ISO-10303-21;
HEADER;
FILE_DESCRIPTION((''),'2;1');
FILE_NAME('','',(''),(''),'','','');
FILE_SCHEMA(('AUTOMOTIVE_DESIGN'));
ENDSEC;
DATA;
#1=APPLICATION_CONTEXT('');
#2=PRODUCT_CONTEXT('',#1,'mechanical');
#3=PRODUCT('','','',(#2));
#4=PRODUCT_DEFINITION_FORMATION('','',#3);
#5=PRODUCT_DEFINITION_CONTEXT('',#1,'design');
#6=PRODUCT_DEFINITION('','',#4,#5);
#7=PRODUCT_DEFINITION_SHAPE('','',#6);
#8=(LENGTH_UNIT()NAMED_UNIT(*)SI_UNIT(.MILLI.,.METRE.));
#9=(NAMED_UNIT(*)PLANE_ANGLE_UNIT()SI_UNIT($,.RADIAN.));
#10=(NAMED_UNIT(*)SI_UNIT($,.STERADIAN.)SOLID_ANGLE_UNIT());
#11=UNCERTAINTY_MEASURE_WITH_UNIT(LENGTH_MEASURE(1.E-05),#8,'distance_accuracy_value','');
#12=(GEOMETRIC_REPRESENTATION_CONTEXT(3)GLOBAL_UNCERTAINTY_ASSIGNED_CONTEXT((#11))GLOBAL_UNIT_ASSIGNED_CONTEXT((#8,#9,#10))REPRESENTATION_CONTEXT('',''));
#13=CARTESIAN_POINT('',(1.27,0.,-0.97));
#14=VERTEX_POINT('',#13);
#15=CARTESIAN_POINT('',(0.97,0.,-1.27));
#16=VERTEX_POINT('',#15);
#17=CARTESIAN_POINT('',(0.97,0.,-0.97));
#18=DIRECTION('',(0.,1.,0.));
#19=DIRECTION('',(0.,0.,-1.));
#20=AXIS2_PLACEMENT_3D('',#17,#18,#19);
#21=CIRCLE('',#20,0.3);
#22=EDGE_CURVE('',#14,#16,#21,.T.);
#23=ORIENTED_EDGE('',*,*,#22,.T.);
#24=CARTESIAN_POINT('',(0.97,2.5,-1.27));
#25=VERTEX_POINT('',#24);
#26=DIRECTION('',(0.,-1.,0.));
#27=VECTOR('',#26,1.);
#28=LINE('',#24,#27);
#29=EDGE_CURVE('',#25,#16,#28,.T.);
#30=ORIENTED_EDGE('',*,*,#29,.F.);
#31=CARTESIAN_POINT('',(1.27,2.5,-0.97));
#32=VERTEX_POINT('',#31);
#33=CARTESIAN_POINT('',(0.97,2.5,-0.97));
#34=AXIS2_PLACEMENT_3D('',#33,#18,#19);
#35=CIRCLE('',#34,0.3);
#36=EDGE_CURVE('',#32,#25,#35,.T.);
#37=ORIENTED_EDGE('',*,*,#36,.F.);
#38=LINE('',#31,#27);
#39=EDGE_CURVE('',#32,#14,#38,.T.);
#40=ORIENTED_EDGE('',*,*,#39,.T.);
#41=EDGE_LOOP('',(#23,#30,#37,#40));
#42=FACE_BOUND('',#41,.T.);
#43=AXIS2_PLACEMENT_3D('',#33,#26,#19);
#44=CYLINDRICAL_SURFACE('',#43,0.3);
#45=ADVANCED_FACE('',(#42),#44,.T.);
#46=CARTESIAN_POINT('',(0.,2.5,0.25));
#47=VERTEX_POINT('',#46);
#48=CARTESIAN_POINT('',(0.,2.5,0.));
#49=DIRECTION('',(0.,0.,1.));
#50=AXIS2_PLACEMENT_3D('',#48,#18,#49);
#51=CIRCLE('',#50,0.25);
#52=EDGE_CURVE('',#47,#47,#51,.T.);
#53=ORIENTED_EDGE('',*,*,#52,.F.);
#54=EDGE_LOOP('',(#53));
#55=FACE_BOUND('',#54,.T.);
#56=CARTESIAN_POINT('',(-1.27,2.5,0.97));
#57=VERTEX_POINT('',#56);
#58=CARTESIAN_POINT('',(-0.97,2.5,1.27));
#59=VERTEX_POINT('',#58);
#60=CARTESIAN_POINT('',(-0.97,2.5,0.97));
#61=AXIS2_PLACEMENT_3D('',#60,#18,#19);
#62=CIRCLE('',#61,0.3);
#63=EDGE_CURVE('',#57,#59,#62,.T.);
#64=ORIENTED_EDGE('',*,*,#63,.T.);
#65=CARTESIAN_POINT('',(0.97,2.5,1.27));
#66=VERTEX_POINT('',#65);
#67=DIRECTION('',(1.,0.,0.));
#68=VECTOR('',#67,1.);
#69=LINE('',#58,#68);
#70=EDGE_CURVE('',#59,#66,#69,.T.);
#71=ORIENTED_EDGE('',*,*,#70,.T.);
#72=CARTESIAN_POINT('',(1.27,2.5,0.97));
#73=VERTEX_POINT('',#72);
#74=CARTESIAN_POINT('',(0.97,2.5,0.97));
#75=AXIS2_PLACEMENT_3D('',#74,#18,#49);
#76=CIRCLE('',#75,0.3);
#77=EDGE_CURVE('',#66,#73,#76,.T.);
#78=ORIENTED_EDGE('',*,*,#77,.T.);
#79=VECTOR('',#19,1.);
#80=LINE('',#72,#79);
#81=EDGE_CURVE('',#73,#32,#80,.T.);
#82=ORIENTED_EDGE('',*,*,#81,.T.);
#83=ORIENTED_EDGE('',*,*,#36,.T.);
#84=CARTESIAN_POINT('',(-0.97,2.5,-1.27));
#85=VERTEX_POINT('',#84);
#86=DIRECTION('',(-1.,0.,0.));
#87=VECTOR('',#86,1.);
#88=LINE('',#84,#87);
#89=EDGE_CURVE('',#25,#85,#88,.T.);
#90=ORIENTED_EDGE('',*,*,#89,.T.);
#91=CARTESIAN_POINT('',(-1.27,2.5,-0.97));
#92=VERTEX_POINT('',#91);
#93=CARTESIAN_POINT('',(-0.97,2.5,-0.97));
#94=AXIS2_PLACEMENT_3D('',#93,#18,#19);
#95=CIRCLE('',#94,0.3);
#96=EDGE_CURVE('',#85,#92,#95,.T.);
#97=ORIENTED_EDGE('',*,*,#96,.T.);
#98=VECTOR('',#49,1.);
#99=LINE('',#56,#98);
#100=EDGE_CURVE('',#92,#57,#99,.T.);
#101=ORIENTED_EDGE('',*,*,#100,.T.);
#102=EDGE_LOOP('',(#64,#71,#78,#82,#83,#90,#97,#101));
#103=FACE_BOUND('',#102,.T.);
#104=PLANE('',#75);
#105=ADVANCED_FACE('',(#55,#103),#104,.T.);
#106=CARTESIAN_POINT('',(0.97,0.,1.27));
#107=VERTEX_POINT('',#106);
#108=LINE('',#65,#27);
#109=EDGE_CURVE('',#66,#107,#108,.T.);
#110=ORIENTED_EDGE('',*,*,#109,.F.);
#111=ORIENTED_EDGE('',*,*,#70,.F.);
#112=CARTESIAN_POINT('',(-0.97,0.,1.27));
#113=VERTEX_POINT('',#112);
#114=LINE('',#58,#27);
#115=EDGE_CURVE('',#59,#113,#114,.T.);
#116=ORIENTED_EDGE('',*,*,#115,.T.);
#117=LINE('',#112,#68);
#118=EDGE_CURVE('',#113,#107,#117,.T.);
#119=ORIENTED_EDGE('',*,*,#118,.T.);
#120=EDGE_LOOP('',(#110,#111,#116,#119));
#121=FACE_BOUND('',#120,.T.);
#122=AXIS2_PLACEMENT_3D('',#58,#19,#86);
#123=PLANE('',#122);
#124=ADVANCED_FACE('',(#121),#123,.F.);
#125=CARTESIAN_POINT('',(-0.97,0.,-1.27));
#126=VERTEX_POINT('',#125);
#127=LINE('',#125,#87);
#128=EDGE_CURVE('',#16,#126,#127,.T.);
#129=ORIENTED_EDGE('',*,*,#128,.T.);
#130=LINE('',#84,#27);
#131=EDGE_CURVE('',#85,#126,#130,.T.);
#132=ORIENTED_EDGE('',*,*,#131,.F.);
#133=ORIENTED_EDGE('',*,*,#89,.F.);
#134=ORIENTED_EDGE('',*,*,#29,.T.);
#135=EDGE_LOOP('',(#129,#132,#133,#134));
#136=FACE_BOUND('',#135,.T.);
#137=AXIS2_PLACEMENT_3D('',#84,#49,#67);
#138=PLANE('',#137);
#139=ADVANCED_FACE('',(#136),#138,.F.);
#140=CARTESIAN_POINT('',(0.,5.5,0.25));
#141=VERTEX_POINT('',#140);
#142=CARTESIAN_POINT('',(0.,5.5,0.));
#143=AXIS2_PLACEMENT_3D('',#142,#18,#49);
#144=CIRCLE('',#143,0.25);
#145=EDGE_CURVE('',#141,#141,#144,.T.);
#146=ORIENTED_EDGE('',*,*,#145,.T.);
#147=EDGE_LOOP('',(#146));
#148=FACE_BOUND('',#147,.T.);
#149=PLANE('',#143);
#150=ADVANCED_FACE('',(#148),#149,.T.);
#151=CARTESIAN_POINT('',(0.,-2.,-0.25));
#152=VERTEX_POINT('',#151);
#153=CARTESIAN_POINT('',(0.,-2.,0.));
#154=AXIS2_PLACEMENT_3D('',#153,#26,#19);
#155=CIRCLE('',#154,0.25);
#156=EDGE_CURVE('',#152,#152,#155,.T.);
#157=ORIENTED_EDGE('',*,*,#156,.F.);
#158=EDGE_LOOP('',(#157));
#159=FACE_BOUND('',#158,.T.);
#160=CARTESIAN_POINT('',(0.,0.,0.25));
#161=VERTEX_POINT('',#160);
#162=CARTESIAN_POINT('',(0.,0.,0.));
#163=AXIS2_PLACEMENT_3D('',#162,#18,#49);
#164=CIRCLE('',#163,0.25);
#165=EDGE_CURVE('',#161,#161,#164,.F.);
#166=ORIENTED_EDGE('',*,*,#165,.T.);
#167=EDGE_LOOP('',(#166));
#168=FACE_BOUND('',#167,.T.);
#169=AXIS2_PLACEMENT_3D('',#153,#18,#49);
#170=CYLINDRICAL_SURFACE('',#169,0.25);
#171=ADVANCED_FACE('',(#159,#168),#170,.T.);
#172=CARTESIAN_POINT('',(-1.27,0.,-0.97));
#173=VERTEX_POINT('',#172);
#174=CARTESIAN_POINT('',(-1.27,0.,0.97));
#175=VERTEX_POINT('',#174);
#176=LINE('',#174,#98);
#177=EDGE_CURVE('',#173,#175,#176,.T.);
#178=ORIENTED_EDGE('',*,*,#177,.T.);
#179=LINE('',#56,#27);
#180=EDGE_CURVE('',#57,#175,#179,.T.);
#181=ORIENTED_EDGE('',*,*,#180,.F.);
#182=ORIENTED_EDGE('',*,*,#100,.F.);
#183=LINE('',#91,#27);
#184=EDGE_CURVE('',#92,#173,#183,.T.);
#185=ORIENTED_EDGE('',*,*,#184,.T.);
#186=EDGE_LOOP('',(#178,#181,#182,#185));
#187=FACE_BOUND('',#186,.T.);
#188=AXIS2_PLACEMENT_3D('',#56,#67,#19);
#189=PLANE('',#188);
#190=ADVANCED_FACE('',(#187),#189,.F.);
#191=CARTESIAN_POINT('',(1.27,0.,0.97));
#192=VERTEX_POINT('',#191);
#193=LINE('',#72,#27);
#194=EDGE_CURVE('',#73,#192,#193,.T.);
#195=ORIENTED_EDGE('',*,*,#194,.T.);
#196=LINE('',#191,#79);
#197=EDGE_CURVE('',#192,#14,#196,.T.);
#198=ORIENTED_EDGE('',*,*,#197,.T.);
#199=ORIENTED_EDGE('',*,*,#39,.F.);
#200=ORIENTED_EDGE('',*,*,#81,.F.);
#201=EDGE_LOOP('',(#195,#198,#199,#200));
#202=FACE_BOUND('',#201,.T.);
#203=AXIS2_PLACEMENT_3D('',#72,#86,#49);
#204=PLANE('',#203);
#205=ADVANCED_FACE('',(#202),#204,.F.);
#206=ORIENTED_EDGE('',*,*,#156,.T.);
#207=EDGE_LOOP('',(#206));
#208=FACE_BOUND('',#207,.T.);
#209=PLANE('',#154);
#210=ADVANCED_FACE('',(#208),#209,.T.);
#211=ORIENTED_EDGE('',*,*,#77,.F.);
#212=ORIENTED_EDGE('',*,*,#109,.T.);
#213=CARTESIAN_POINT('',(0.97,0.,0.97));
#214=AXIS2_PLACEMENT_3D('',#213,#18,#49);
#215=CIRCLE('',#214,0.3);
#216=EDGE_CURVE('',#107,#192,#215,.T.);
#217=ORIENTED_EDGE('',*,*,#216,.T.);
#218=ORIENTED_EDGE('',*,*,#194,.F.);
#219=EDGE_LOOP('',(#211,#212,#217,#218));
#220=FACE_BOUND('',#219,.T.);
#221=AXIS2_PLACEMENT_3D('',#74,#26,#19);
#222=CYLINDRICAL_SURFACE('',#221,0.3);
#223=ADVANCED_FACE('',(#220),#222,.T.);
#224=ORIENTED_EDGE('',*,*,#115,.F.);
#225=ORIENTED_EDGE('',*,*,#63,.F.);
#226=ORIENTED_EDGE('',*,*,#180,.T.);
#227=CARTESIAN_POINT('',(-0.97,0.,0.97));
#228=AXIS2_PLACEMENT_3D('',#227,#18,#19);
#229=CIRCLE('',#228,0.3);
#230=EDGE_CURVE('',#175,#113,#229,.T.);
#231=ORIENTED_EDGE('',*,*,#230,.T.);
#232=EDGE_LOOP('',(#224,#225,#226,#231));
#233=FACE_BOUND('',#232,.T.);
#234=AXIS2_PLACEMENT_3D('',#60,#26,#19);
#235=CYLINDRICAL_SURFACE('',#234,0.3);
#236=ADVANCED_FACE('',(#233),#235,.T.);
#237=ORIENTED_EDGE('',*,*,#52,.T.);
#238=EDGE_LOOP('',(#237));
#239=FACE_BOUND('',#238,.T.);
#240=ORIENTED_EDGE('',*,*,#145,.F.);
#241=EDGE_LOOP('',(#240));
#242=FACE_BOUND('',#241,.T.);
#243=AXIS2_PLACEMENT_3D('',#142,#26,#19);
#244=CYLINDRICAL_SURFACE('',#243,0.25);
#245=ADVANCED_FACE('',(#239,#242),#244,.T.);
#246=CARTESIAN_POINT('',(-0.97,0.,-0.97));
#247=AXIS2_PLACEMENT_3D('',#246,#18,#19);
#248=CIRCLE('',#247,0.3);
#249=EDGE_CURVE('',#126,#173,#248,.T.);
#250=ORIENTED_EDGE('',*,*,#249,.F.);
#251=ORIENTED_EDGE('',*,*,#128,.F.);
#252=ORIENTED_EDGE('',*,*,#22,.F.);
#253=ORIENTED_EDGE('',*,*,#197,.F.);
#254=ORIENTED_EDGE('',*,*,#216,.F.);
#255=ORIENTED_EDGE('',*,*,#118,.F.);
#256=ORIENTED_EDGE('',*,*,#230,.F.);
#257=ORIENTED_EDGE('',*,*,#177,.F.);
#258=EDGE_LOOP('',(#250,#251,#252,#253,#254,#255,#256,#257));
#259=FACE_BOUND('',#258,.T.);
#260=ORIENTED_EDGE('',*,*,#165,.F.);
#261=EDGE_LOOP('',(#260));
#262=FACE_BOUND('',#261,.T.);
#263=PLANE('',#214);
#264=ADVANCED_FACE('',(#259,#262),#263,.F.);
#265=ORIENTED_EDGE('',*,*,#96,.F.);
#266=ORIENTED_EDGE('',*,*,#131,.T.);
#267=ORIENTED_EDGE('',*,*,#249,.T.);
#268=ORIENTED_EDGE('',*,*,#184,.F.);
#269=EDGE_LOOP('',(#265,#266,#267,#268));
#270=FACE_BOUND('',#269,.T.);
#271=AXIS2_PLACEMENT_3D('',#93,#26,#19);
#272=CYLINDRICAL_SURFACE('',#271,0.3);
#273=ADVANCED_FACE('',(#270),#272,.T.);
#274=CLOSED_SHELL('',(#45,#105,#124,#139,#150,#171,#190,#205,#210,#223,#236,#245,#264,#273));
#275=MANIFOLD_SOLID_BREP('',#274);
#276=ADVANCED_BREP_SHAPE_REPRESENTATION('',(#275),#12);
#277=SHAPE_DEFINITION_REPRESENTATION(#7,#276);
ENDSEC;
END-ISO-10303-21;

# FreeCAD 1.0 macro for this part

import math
import FreeCAD as App
import Part
import Sketcher
Q = App.Units.Quantity

doc = App.newDocument("Part")
body = doc.addObject("PartDesign::Body", "Body")

# Sketch on XZ plane
sketch1 = body.newObject("Sketcher::SketchObject", "Sketch")
sketch1.AttachmentSupport = (doc.getObject("XZ_Plane"), [""])
sketch1.MapMode = "FlatFace"
sketch1.addGeometry(Part.LineSegment(App.Vector(-0.97, 1.27, 0), App.Vector(0.97, 1.27, 0)), False)
sketch1.addGeometry(Part.ArcOfCircle(Part.Circle(App.Vector(0.97, 0.97, 0), App.Vector(0, 0, 1), 0.3), math.radians(0), math.radians(90)), False)
sketch1.addGeometry(Part.LineSegment(App.Vector(1.27, 0.97, 0), App.Vector(1.27, -0.97, 0)), False)
sketch1.addGeometry(Part.ArcOfCircle(Part.Circle(App.Vector(0.97, -0.97, 0), App.Vector(0, 0, 1), 0.3), math.radians(-90), math.radians(0)), False)
sketch1.addGeometry(Part.LineSegment(App.Vector(0.97, -1.27, 0), App.Vector(-0.97, -1.27, 0)), False)
sketch1.addGeometry(Part.ArcOfCircle(Part.Circle(App.Vector(-0.97, -0.97, 0), App.Vector(0, 0, 1), 0.3), math.radians(-180), math.radians(-90)), False)
sketch1.addGeometry(Part.LineSegment(App.Vector(-1.27, -0.97, 0), App.Vector(-1.27, 0.97, 0)), False)
sketch1.addGeometry(Part.ArcOfCircle(Part.Circle(App.Vector(-0.97, 0.97, 0), App.Vector(0, 0, 1), 0.3), math.radians(90), math.radians(180)), False)
sketch1.addConstraint(Sketcher.Constraint("Tangent", 0, 2, 1, 2))
sketch1.addConstraint(Sketcher.Constraint("Tangent", 1, 1, 2, 1))
sketch1.addConstraint(Sketcher.Constraint("Tangent", 2, 2, 3, 2))
sketch1.addConstraint(Sketcher.Constraint("Tangent", 3, 1, 4, 1))
sketch1.addConstraint(Sketcher.Constraint("Tangent", 4, 2, 5, 2))
sketch1.addConstraint(Sketcher.Constraint("Tangent", 5, 1, 6, 1))
sketch1.addConstraint(Sketcher.Constraint("Tangent", 6, 2, 7, 2))
sketch1.addConstraint(Sketcher.Constraint("Tangent", 7, 1, 0, 1))
sketch1.addConstraint(Sketcher.Constraint("Horizontal", 0))
sketch1.addConstraint(Sketcher.Constraint("Vertical", 2))
sketch1.addConstraint(Sketcher.Constraint("Horizontal", 4))
sketch1.addConstraint(Sketcher.Constraint("Vertical", 6))
sketch1.addConstraint(Sketcher.Constraint("Equal", 1, 3))
sketch1.addConstraint(Sketcher.Constraint("Equal", 3, 5))
sketch1.addConstraint(Sketcher.Constraint("Equal", 5, 7))
sketch1.addConstraint(Sketcher.Constraint("Symmetric", 1, 3, 5, 3, -1, 1))
sketch1.addConstraint(Sketcher.Constraint("Equal", 4, 2))
sketch1.addConstraint(Sketcher.Constraint("Radius", 1, Q("0.3 mm")))
sketch1.addConstraint(Sketcher.Constraint("DistanceX", 0, 1, 0, 2, Q("1.94 mm")))
pad1 = body.newObject("PartDesign::Pad", "Pad")
pad1.Profile = sketch1
pad1.Length = 2.5
pad1.Reversed = True

# Sketch on XZ plane
sketch2 = body.newObject("Sketcher::SketchObject", "Sketch001")
sketch2.AttachmentSupport = (doc.getObject("XZ_Plane"), [""])
sketch2.MapMode = "FlatFace"
sketch2.AttachmentOffset = App.Placement(App.Vector(0, 0, -2.5), App.Rotation())
sketch2.addGeometry(Part.Circle(App.Vector(0, 0, 0), App.Vector(0, 0, 1), 0.25), False)
sketch2.addConstraint(Sketcher.Constraint("Coincident", 0, 3, -1, 1))
sketch2.addConstraint(Sketcher.Constraint("Diameter", 0, Q("0.5 mm")))
pad2 = body.newObject("PartDesign::Pad", "Pad001")
pad2.Profile = sketch2
pad2.Length = 3
pad2.Reversed = True

# Sketch on XZ plane
sketch3 = body.newObject("Sketcher::SketchObject", "Sketch002")
sketch3.AttachmentSupport = (doc.getObject("XZ_Plane"), [""])
sketch3.MapMode = "FlatFace"
sketch3.AttachmentOffset = App.Placement(App.Vector(0, 0, 2), App.Rotation())
sketch3.addGeometry(Part.Circle(App.Vector(0, 0, 0), App.Vector(0, 0, 1), 0.25), False)
sketch3.addConstraint(Sketcher.Constraint("Coincident", 0, 3, -1, 1))
sketch3.addConstraint(Sketcher.Constraint("Diameter", 0, Q("0.5 mm")))
pad3 = body.newObject("PartDesign::Pad", "Pad002")
pad3.Profile = sketch3
pad3.Length = 2
pad3.Reversed = True

doc.recompute()
